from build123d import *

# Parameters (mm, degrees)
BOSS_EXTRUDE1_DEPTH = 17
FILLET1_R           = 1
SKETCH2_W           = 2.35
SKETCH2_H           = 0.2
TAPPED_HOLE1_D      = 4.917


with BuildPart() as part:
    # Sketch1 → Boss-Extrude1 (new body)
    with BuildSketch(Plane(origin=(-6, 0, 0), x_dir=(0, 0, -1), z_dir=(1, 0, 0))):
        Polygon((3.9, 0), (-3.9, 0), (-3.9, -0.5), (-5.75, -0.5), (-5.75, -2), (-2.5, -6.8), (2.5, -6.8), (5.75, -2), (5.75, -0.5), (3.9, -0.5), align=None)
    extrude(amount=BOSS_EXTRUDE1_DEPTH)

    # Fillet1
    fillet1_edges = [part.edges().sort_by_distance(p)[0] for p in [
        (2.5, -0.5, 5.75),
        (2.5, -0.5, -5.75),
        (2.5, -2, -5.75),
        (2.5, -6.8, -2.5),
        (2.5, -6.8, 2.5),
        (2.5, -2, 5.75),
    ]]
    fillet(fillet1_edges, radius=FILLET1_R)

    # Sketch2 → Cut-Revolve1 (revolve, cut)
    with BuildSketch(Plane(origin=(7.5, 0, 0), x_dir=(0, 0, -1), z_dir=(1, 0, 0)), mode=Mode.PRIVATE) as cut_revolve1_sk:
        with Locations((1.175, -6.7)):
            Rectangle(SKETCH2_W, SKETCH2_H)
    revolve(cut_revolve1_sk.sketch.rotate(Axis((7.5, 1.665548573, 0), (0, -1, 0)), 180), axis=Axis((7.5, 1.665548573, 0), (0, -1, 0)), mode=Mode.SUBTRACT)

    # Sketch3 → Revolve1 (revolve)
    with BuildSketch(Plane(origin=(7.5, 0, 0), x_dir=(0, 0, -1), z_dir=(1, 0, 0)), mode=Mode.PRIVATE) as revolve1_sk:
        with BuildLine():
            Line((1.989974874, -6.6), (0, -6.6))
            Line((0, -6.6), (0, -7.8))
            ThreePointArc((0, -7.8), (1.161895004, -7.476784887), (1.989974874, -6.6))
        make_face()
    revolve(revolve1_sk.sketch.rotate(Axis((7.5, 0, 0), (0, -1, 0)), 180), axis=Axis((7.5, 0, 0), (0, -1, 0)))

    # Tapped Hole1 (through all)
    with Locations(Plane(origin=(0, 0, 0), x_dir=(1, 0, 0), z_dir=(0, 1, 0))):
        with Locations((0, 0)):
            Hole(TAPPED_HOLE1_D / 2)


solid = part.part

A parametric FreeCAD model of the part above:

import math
import FreeCAD as App
import Part
import Sketcher

V = App.Vector


def edges_at(feature, points):
    """Names of the edges that pass closest to the given points."""
    edges = feature.Shape.Edges
    near = lambda p: min(range(len(edges)), key=lambda i: edges[i].distToShape(Part.Vertex(*p))[0])
    return sorted({f"Edge{near(p) + 1}" for p in points})

doc = App.newDocument("Part")
params = doc.addObject("Spreadsheet::Sheet", "Params")
for row, (alias, value) in enumerate([
    ("sketch1_height", "5 mm"),
    ("sketch1_width", "0.5 mm"),
    ("sketch1_width2", "1.5 mm"),
    ("sketch1_height2", "7.8 mm"),
    ("sketch1_height3", "1.85 mm"),
    ("pad1_length", "17 mm"),
    ("fillet_radius", "1 mm"),
    ("sketch2_width", "0.2 mm"),
    ("sketch2_height", "2.35 mm"),
    ("groove_angle", "360 deg"),
    ("sketch3_radius", "2.25 mm"),
    ("sketch3_width", "1.2 mm"),
    ("revolution_angle", "360 deg"),
    ("hole_diameter", "4.917 mm"),
], start=1):
    params.set(f"A{row}", alias)
    params.set(f"B{row}", "=" + value)
    params.setAlias(f"B{row}", alias)

body = doc.addObject("PartDesign::Body", "Body")

# Sketch on YZ plane
sketch1 = body.newObject("Sketcher::SketchObject", "Sketch")
sketch1.AttachmentSupport = (doc.getObject("YZ_Plane"), [""])
sketch1.MapMode = "FlatFace"
sketch1.AttachmentOffset = App.Placement(V(0, 0, -6), App.Rotation())
sketch1.addGeometry([
    Part.LineSegment(V(0, -3.9, 0), V(0, 3.9, 0)),  # 0
    Part.LineSegment(V(0, 3.9, 0), V(-0.5, 3.9, 0)),  # 1
    Part.LineSegment(V(-0.5, 3.9, 0), V(-0.5, 5.8, 0)),  # 2
    Part.LineSegment(V(-0.5, 5.8, 0), V(-2, 5.8, 0)),  # 3
    Part.LineSegment(V(-2, 5.8, 0), V(-6.8, 2.5, 0)),  # 4
    Part.LineSegment(V(-6.8, 2.5, 0), V(-6.8, -2.5, 0)),  # 5
    Part.LineSegment(V(-6.8, -2.5, 0), V(-2, -5.8, 0)),  # 6
    Part.LineSegment(V(-2, -5.8, 0), V(-0.5, -5.8, 0)),  # 7
    Part.LineSegment(V(-0.5, -5.8, 0), V(-0.5, -3.9, 0)),  # 8
    Part.LineSegment(V(-0.5, -3.9, 0), V(0, -3.9, 0)),  # 9
], False)
sketch1.addConstraint([
    Sketcher.Constraint("Coincident", 0, 2, 1, 1),
    Sketcher.Constraint("Coincident", 1, 2, 2, 1),
    Sketcher.Constraint("Coincident", 2, 2, 3, 1),
    Sketcher.Constraint("Coincident", 3, 2, 4, 1),
    Sketcher.Constraint("Coincident", 4, 2, 5, 1),
    Sketcher.Constraint("Coincident", 5, 2, 6, 1),
    Sketcher.Constraint("Coincident", 6, 2, 7, 1),
    Sketcher.Constraint("Coincident", 7, 2, 8, 1),
    Sketcher.Constraint("Coincident", 8, 2, 9, 1),
    Sketcher.Constraint("Coincident", 9, 2, 0, 1),
    Sketcher.Constraint("Vertical", 0),
    Sketcher.Constraint("Horizontal", 1),
    Sketcher.Constraint("Vertical", 2),
    Sketcher.Constraint("Horizontal", 3),
    Sketcher.Constraint("Vertical", 5),
    Sketcher.Constraint("Horizontal", 7),
    Sketcher.Constraint("Vertical", 8),
    Sketcher.Constraint("Horizontal", 9),
    Sketcher.Constraint("Symmetric", 0, 2, 9, 2, -1, 1),
    Sketcher.Constraint("Symmetric", 3, 2, 6, 2, -1),
    Sketcher.Constraint("Vertical", 2, 2, 7, 2),
    Sketcher.Constraint("Equal", 4, 6),
    Sketcher.Constraint("DistanceY", 5, 2, 5, 1, 5.0),
    Sketcher.Constraint("DistanceX", 1, 2, 1, 1, 0.5),
    Sketcher.Constraint("DistanceX", 3, 2, 3, 1, 1.5),
    Sketcher.Constraint("DistanceY", 0, 1, 0, 2, 7.8),
    Sketcher.Constraint("DistanceY", 2, 1, 2, 2, 1.85),
    Sketcher.Constraint("DistanceX", 4, 2, -1, 1, 6.8),
])
sketch1.setExpression("Constraints[22]", "Params.sketch1_height")
sketch1.setExpression("Constraints[23]", "Params.sketch1_width")
sketch1.setExpression("Constraints[24]", "Params.sketch1_width2")
sketch1.setExpression("Constraints[25]", "Params.sketch1_height2")
sketch1.setExpression("Constraints[26]", "Params.sketch1_height3")
pad1 = body.newObject("PartDesign::Pad", "Pad")
pad1.Profile = sketch1
pad1.setExpression("Length", "Params.pad1_length")
doc.recompute()

fillet = body.newObject("PartDesign::Fillet", "Fillet")
fillet.Base = (pad1, edges_at(pad1, [
    (2.5, -0.5, 5.75),
    (2.5, -0.5, -5.75),
    (2.5, -2, -5.75),
    (2.5, -6.8, -2.5),
    (2.5, -6.8, 2.5),
    (2.5, -2, 5.75),
]))
fillet.setExpression("Radius", "Params.fillet_radius")

# Sketch on YZ plane
sketch2 = body.newObject("Sketcher::SketchObject", "Sketch001")
sketch2.AttachmentSupport = (doc.getObject("YZ_Plane"), [""])
sketch2.MapMode = "FlatFace"
sketch2.AttachmentOffset = App.Placement(V(0, 0, 7.5), App.Rotation())
sketch2.addGeometry([
    Part.LineSegment(V(-6.6, 0, 0), V(-6.8, 0, 0)),
    Part.LineSegment(V(-6.8, 0, 0), V(-6.8, -2.35, 0)),
    Part.LineSegment(V(-6.8, -2.35, 0), V(-6.6, -2.35, 0)),
    Part.LineSegment(V(-6.6, -2.35, 0), V(-6.6, 0, 0)),
], False)
sketch2.addConstraint([
    Sketcher.Constraint("Coincident", 0, 2, 1, 1),
    Sketcher.Constraint("Coincident", 1, 2, 2, 1),
    Sketcher.Constraint("Coincident", 2, 2, 3, 1),
    Sketcher.Constraint("Coincident", 3, 2, 0, 1),
    Sketcher.Constraint("Horizontal", 0),
    Sketcher.Constraint("Vertical", 1),
    Sketcher.Constraint("Horizontal", 2),
    Sketcher.Constraint("Vertical", 3),
    Sketcher.Constraint("PointOnObject", 0, 2, -1),
    Sketcher.Constraint("DistanceX", 0, 2, 0, 1, 0.2),
    Sketcher.Constraint("DistanceY", 1, 2, 1, 1, 2.35),
    Sketcher.Constraint("DistanceX", 0, 2, -1, 1, 6.8),
])
sketch2.setExpression("Constraints[9]", "Params.sketch2_width")
sketch2.setExpression("Constraints[10]", "Params.sketch2_height")
groove = body.newObject("PartDesign::Groove", "Groove")
groove.Profile = sketch2
groove.ReferenceAxis = (sketch2, ["H_Axis"])
groove.setExpression("Angle", "Params.groove_angle")

# Sketch on YZ plane
sketch3 = body.newObject("Sketcher::SketchObject", "Sketch002")
sketch3.AttachmentSupport = (doc.getObject("YZ_Plane"), [""])
sketch3.MapMode = "FlatFace"
sketch3.AttachmentOffset = App.Placement(V(0, 0, 7.5), App.Rotation())
sketch3.addGeometry([
    Part.LineSegment(V(-6.6, -2, 0), V(-6.6, 0, 0)),
    Part.LineSegment(V(-6.6, 0, 0), V(-7.8, 0, 0)),
    Part.ArcOfCircle(Part.Circle(V(-5.6, 0, 0), V(0, 0, 1), 2.2), math.radians(180), math.radians(242)),
], False)
sketch3.addConstraint([
    Sketcher.Constraint("Coincident", 0, 2, 1, 1),
    Sketcher.Constraint("Coincident", 1, 2, 2, 1),
    Sketcher.Constraint("Coincident", 2, 2, 0, 1),
    Sketcher.Constraint("Vertical", 0),
    Sketcher.Constraint("Horizontal", 1),
    Sketcher.Constraint("PointOnObject", 2, 3, -1),
    Sketcher.Constraint("PointOnObject", 0, 2, -1),
    Sketcher.Constraint("Radius", 2, 2.25),
    Sketcher.Constraint("DistanceX", 1, 2, 1, 1, 1.2),
    Sketcher.Constraint("DistanceX", 0, 2, -1, 1, 6.6),
])
sketch3.setExpression("Constraints[7]", "Params.sketch3_radius")
sketch3.setExpression("Constraints[8]", "Params.sketch3_width")
revolution = body.newObject("PartDesign::Revolution", "Revolution")
revolution.Profile = sketch3
revolution.ReferenceAxis = (sketch3, ["H_Axis"])
revolution.setExpression("Angle", "Params.revolution_angle")

# Sketch on XZ plane
sketch4 = body.newObject("Sketcher::SketchObject", "Sketch003")
sketch4.AttachmentSupport = (doc.getObject("XZ_Plane"), [""])
sketch4.MapMode = "FlatFace"
sketch4.addGeometry(Part.Circle(V(0, 0, 0), V(0, 0, 1), 2.5), False)
sketch4.addConstraint([
    Sketcher.Constraint("Coincident", 0, 3, -1, 1),
    Sketcher.Constraint("Diameter", 0, 4.917),
])
doc.recompute()
hole = body.newObject("PartDesign::Hole", "Hole")
hole.Profile = sketch4
hole.ThreadType = "None"
hole.setExpression("Diameter", "Params.hole_diameter")
hole.DepthType = "ThroughAll"
hole.Reversed = True

doc.recompute()
